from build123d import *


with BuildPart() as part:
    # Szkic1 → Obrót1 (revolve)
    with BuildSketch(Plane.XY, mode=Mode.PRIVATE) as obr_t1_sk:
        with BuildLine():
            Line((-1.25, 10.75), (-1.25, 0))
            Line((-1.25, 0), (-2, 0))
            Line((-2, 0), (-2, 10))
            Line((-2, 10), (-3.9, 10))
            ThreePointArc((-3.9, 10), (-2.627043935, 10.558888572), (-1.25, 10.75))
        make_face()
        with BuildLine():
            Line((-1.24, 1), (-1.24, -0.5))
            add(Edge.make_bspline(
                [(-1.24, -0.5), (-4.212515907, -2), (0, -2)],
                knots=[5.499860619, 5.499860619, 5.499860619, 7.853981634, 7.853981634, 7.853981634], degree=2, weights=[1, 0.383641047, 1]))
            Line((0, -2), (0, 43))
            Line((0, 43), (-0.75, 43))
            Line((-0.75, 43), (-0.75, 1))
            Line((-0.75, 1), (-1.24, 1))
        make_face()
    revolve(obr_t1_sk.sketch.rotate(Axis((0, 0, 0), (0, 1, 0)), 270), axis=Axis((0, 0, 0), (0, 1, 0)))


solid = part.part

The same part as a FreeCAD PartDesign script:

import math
import FreeCAD as App
import Part
import Sketcher
from FreeCAD import Vector
Q = App.Units.Quantity

doc = App.newDocument("Part")
body = doc.addObject("PartDesign::Body", "Body")
body.AllowCompound = True

# Sketch on XY plane
sketch1 = doc.addObject("Sketcher::SketchObject", "Sketch")
body.addObject(sketch1)
sketch1.AttachmentSupport = (doc.XY_Plane, [""])
sketch1.MapMode = "FlatFace"
sketch1.addGeometry(Part.LineSegment(Vector(-1.25, 0, 0), Vector(-1.25, 10.75, 0)), False)
sketch1.addGeometry(Part.ArcOfCircle(Part.Circle(Vector(-1.25, 5.693333, 0), Vector(0, 0, 1), 5.056667), math.radians(90), math.radians(121.605028)), False)
sketch1.addGeometry(Part.LineSegment(Vector(-3.9, 10, 0), Vector(-2, 10, 0)), False)
sketch1.addGeometry(Part.LineSegment(Vector(-2, 10, 0), Vector(-2, 0, 0)), False)
sketch1.addGeometry(Part.LineSegment(Vector(-2, 0, 0), Vector(-1.25, 0, 0)), False)
sketch1.addGeometry(Part.LineSegment(Vector(-1.24, 1, 0), Vector(-1.24, -0.5, 0)), False)
sketch1.addGeometry(Part.BSplineCurve([Vector(-1.24, -0.5, 0), Vector(-4.212516, -2, 0), Vector(0, -2, 0)], [3, 3], [5.499860619, 7.853981634], False, 2, [1, 0.383641047, 1], False), False)
sketch1.addGeometry(Part.LineSegment(Vector(0, -2, 0), Vector(0, 43, 0)), False)
sketch1.addGeometry(Part.LineSegment(Vector(0, 43, 0), Vector(-0.75, 43, 0)), False)
sketch1.addGeometry(Part.LineSegment(Vector(-0.75, 43, 0), Vector(-0.75, 1, 0)), False)
sketch1.addGeometry(Part.LineSegment(Vector(-0.75, 1, 0), Vector(-1.24, 1, 0)), False)
sketch1.addConstraint(Sketcher.Constraint("Block", 6))
sketch1.addConstraint(Sketcher.Constraint("Coincident", 0, 2, 1, 1))
sketch1.addConstraint(Sketcher.Constraint("Coincident", 1, 2, 2, 1))
sketch1.addConstraint(Sketcher.Constraint("Coincident", 2, 2, 3, 1))
sketch1.addConstraint(Sketcher.Constraint("Coincident", 3, 2, 4, 1))
sketch1.addConstraint(Sketcher.Constraint("Coincident", 4, 2, 0, 1))
sketch1.addConstraint(Sketcher.Constraint("Coincident", 5, 2, 6, 1))
sketch1.addConstraint(Sketcher.Constraint("Coincident", 6, 2, 7, 1))
sketch1.addConstraint(Sketcher.Constraint("Coincident", 7, 2, 8, 1))
sketch1.addConstraint(Sketcher.Constraint("Coincident", 8, 2, 9, 1))
sketch1.addConstraint(Sketcher.Constraint("Coincident", 9, 2, 10, 1))
sketch1.addConstraint(Sketcher.Constraint("Coincident", 10, 2, 5, 1))
sketch1.addConstraint(Sketcher.Constraint("Vertical", 0))
sketch1.addConstraint(Sketcher.Constraint("Horizontal", 2))
sketch1.addConstraint(Sketcher.Constraint("Vertical", 3))
sketch1.addConstraint(Sketcher.Constraint("Horizontal", 4))
sketch1.addConstraint(Sketcher.Constraint("Vertical", 5))
sketch1.addConstraint(Sketcher.Constraint("Vertical", 7))
sketch1.addConstraint(Sketcher.Constraint("Horizontal", 8))
sketch1.addConstraint(Sketcher.Constraint("Vertical", 9))
sketch1.addConstraint(Sketcher.Constraint("Horizontal", 10))
sketch1.addConstraint(Sketcher.Constraint("PointOnObject", 3, 2, -1))
sketch1.addConstraint(Sketcher.Constraint("Vertical", 1, 3, 0, 2))
sketch1.addConstraint(Sketcher.Constraint("Equal", 4, 8))
sketch1.addConstraint(Sketcher.Constraint("DistanceY", 3, 2, 3, 1, Q("10 mm")))
sketch1.addConstraint(Sketcher.Constraint("DistanceY", 7, 1, 7, 2, Q("45 mm")))
sketch1.addConstraint(Sketcher.Constraint("DistanceY", 9, 2, 9, 1, Q("42 mm")))
sketch1.addConstraint(Sketcher.Constraint("DistanceX", 2, 1, 2, 2, Q("1.9 mm")))
sketch1.addConstraint(Sketcher.Constraint("DistanceX", 2, 2, -1, 1, Q("2 mm")))
sketch1.addConstraint(Sketcher.Constraint("DistanceX", 4, 1, 4, 2, Q("0.75 mm")))
sketch1.addConstraint(Sketcher.Constraint("DistanceY", 0, 1, 0, 2, Q("10.75 mm")))
revolution = doc.addObject("PartDesign::Revolution", "Revolution")
body.addObject(revolution)
revolution.Profile = sketch1
revolution.ReferenceAxis = (sketch1, ["V_Axis"])
revolution.Angle = 360

doc.recompute()
